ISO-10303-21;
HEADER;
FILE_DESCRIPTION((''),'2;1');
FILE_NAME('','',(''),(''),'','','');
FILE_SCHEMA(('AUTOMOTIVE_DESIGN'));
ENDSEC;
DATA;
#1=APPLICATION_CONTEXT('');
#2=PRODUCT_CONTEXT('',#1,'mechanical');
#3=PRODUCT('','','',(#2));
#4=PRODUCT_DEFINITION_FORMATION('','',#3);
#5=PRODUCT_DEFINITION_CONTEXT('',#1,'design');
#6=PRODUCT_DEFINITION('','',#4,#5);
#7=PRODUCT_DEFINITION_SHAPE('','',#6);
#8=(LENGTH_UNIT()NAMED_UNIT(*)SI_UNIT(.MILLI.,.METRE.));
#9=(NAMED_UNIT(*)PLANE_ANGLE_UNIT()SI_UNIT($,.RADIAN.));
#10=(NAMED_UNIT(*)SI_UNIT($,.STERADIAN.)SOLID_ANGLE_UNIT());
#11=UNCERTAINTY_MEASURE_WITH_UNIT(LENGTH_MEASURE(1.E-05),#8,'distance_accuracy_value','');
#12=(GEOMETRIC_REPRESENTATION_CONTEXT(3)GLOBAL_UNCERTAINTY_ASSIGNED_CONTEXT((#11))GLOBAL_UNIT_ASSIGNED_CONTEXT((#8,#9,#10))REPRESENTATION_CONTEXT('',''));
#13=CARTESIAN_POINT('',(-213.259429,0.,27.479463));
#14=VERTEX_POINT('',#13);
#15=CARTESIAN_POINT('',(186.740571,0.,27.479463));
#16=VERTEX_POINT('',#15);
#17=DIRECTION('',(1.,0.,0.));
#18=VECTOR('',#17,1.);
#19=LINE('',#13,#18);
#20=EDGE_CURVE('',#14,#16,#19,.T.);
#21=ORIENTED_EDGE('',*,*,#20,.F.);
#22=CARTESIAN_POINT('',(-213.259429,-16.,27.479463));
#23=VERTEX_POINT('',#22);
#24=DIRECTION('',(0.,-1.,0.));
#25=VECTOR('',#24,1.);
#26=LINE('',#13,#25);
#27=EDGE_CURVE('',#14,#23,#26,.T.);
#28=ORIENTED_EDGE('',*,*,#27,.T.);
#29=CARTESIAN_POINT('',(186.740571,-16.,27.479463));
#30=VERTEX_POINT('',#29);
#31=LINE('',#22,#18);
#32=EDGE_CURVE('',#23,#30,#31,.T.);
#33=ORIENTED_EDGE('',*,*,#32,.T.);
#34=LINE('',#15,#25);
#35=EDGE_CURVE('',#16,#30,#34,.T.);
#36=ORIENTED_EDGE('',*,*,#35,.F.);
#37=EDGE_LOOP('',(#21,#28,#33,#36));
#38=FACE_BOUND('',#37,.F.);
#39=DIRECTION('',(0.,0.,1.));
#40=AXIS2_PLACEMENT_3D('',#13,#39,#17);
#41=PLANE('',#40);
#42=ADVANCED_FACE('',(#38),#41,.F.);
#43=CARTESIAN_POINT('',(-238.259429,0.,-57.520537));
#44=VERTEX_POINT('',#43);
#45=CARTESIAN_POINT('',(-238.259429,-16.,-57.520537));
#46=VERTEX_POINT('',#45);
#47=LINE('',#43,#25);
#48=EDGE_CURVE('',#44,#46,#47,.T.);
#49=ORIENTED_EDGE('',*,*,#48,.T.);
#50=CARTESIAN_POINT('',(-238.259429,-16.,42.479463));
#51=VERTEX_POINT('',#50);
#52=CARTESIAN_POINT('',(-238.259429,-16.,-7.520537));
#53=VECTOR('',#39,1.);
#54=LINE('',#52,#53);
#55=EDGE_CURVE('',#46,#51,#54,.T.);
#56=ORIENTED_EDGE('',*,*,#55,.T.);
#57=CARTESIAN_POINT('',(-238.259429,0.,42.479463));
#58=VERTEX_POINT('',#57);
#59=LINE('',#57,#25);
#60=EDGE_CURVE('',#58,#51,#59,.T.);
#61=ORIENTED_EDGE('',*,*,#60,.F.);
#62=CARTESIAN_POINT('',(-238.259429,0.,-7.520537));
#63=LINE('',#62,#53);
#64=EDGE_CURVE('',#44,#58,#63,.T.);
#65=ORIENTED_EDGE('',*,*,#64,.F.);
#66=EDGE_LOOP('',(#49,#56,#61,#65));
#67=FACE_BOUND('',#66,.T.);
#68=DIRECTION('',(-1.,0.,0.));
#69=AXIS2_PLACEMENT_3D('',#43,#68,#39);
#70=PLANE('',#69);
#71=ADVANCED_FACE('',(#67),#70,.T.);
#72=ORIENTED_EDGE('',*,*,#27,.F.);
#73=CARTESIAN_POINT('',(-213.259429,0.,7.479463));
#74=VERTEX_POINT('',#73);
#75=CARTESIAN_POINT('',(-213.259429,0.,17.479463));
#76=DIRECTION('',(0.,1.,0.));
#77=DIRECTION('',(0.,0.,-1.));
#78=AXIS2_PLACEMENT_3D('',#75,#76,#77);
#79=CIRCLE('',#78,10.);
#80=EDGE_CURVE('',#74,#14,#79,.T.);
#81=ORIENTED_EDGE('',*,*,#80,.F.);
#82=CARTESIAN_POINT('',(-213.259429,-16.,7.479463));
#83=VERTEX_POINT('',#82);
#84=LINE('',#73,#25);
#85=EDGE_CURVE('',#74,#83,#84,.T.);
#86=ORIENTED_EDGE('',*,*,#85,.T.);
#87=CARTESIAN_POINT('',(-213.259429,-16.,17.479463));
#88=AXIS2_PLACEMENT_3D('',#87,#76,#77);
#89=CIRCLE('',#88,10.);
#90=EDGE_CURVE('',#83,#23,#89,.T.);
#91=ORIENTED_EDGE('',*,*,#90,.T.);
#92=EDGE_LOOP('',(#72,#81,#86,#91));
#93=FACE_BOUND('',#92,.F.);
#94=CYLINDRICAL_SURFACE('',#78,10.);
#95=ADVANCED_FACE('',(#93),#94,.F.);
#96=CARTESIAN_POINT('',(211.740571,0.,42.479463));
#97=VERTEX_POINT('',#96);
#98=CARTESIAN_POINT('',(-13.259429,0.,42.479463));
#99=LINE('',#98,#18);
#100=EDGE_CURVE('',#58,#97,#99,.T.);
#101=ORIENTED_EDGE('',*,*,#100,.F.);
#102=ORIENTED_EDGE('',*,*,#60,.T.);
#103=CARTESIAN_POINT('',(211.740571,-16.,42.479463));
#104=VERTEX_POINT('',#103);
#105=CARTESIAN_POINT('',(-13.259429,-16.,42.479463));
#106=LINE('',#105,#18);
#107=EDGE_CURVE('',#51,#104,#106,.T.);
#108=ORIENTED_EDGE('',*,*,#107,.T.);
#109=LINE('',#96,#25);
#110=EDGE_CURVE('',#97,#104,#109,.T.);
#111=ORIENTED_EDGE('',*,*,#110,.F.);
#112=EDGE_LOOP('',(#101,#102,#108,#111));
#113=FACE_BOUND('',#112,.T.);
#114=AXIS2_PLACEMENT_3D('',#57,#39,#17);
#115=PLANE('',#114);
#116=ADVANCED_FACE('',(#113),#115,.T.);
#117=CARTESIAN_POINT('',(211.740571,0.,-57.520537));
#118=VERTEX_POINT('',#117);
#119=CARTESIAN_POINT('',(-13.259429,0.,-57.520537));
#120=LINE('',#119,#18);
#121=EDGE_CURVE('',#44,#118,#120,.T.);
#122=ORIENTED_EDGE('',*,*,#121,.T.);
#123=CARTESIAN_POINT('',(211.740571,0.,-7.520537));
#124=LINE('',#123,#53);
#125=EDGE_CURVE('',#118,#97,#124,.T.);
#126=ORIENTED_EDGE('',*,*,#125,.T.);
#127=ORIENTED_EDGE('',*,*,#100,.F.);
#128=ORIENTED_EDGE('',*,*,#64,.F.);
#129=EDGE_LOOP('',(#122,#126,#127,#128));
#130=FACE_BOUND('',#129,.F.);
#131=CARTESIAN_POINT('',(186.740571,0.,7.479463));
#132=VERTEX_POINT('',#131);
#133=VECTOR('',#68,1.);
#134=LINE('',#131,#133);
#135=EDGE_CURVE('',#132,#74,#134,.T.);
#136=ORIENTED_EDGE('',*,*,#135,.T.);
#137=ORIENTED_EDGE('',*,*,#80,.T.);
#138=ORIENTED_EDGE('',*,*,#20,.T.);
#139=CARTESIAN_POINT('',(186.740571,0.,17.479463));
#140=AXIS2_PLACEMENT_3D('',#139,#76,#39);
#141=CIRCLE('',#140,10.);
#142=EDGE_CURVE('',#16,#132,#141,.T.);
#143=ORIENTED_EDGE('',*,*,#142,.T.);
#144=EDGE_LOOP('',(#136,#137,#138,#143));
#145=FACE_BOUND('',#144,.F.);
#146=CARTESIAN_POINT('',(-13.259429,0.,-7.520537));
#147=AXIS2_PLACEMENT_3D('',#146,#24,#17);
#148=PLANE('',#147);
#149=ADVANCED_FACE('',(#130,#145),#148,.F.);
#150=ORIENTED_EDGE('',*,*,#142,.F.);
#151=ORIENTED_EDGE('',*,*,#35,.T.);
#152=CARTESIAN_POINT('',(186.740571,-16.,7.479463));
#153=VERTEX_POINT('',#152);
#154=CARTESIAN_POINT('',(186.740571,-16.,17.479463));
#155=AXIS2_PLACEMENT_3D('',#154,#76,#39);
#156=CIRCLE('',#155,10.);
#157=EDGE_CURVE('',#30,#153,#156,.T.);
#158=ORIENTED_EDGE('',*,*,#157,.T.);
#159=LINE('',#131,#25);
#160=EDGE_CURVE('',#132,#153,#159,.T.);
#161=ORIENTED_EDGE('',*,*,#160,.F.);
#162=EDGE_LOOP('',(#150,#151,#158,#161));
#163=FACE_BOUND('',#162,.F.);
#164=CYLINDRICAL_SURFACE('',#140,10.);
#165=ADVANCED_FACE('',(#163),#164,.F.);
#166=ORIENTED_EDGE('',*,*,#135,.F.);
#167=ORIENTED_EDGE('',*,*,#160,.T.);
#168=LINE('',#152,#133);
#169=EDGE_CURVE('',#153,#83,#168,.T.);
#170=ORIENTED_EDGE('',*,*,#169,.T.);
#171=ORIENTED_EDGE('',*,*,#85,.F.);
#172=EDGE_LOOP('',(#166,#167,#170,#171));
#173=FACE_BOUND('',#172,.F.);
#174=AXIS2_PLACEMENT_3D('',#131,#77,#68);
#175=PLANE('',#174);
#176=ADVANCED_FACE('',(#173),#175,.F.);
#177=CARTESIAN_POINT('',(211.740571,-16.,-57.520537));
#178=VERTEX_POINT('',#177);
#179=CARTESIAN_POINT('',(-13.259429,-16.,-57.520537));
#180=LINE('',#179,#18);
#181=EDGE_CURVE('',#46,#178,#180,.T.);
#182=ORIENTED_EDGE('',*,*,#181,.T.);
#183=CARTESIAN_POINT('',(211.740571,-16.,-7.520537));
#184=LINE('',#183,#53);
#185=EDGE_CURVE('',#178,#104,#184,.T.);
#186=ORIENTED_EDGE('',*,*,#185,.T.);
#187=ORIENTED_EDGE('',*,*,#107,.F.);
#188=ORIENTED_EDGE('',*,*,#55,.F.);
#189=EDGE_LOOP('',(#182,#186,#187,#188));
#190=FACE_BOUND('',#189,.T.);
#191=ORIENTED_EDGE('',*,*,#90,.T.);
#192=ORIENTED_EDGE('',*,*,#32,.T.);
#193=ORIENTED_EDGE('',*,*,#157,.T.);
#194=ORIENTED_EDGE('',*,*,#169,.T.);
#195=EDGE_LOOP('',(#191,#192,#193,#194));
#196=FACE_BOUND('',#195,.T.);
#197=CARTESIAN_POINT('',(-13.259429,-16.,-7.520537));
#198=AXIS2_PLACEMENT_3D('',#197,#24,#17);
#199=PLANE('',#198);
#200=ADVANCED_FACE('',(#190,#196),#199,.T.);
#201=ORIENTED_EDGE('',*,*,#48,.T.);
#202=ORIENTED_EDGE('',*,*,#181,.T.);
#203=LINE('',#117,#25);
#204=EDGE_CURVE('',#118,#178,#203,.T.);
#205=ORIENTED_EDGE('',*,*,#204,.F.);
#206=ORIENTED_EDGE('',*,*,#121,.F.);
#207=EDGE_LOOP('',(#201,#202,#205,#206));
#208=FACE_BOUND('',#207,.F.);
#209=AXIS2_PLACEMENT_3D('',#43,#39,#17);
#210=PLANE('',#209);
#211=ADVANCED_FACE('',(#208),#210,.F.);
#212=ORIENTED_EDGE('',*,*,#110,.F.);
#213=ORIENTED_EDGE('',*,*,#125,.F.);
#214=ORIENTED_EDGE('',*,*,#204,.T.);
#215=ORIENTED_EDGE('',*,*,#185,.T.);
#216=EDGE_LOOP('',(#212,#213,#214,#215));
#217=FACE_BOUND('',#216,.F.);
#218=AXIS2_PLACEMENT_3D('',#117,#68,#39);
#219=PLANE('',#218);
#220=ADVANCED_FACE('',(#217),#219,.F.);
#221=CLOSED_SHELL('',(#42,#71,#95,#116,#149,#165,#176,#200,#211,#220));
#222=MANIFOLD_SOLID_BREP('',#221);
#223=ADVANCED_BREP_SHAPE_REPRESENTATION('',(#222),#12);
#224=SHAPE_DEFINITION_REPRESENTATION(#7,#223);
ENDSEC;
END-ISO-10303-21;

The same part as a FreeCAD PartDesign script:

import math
import FreeCAD as App
import Part
import Sketcher

V = App.Vector
Q = App.Units.Quantity


def add_polygon(sketch, points):
    """Adds a closed chain of lines whose ends are joined by coincident constraints."""
    first, n = sketch.GeometryCount, len(points)
    for a, b in zip(points, points[1:] + points[:1]):
        sketch.addGeometry(Part.LineSegment(App.Vector(*a, 0), App.Vector(*b, 0)), False)
    for i in range(n):
        sketch.addConstraint(Sketcher.Constraint("Coincident", first + i, 2, first + (i + 1) % n, 1))

doc = App.newDocument("Part")
body = doc.addObject("PartDesign::Body", "Body")

# Sketch on XZ plane
sketch1 = body.newObject("Sketcher::SketchObject", "Sketch")
sketch1.AttachmentSupport = (doc.getObject("XZ_Plane"), [""])
sketch1.MapMode = "FlatFace"
add_polygon(sketch1, [(-238.259429, 42.479463), (-238.259429, -57.520537), (211.740571, -57.520537), (211.740571, 42.479463)])  # lines 0-3
sketch1.addGeometry(Part.LineSegment(V(186.740571, 7.479463, 0), V(-213.259429, 7.479463, 0)), False)  # 4
sketch1.addGeometry(Part.ArcOfCircle(Part.Circle(V(-213.259429, 17.479463, 0), V(0, 0, 1), 10), math.radians(90), math.radians(270)), False)  # 5
sketch1.addGeometry(Part.LineSegment(V(-213.259429, 27.479463, 0), V(186.740571, 27.479463, 0)), False)  # 6
sketch1.addGeometry(Part.ArcOfCircle(Part.Circle(V(186.740571, 17.479463, 0), V(0, 0, 1), 10), math.radians(-90), math.radians(90)), False)  # 7
sketch1.addConstraint(Sketcher.Constraint("Tangent", 4, 2, 5, 2))
sketch1.addConstraint(Sketcher.Constraint("Tangent", 5, 1, 6, 1))
sketch1.addConstraint(Sketcher.Constraint("Tangent", 6, 2, 7, 2))
sketch1.addConstraint(Sketcher.Constraint("Tangent", 7, 1, 4, 1))
sketch1.addConstraint(Sketcher.Constraint("Vertical", 0))
sketch1.addConstraint(Sketcher.Constraint("Horizontal", 1))
sketch1.addConstraint(Sketcher.Constraint("Vertical", 2))
sketch1.addConstraint(Sketcher.Constraint("Horizontal", 3))
sketch1.addConstraint(Sketcher.Constraint("Horizontal", 4))
sketch1.addConstraint(Sketcher.Constraint("Horizontal", 6))
sketch1.addConstraint(Sketcher.Constraint("Radius", 5, Q("10 mm")))
sketch1.addConstraint(Sketcher.Constraint("DistanceX", 1, 1, 1, 2, Q("450 mm")))
sketch1.addConstraint(Sketcher.Constraint("DistanceX", 4, 2, 4, 1, Q("400 mm")))
sketch1.addConstraint(Sketcher.Constraint("DistanceY", 0, 2, 0, 1, Q("100 mm")))
sketch1.addConstraint(Sketcher.Constraint("DistanceX", 0, 2, 5, 3, Q("25 mm")))
sketch1.addConstraint(Sketcher.Constraint("DistanceY", 0, 2, 5, 3, Q("75 mm")))
sketch1.addConstraint(Sketcher.Constraint("DistanceX", 5, 3, -1, 1, Q("213.259429 mm")))
sketch1.addConstraint(Sketcher.Constraint("DistanceY", -1, 1, 5, 3, Q("17.479463 mm")))
pad1 = body.newObject("PartDesign::Pad", "Pad")
pad1.Profile = sketch1
pad1.Length = 16

doc.recompute()
